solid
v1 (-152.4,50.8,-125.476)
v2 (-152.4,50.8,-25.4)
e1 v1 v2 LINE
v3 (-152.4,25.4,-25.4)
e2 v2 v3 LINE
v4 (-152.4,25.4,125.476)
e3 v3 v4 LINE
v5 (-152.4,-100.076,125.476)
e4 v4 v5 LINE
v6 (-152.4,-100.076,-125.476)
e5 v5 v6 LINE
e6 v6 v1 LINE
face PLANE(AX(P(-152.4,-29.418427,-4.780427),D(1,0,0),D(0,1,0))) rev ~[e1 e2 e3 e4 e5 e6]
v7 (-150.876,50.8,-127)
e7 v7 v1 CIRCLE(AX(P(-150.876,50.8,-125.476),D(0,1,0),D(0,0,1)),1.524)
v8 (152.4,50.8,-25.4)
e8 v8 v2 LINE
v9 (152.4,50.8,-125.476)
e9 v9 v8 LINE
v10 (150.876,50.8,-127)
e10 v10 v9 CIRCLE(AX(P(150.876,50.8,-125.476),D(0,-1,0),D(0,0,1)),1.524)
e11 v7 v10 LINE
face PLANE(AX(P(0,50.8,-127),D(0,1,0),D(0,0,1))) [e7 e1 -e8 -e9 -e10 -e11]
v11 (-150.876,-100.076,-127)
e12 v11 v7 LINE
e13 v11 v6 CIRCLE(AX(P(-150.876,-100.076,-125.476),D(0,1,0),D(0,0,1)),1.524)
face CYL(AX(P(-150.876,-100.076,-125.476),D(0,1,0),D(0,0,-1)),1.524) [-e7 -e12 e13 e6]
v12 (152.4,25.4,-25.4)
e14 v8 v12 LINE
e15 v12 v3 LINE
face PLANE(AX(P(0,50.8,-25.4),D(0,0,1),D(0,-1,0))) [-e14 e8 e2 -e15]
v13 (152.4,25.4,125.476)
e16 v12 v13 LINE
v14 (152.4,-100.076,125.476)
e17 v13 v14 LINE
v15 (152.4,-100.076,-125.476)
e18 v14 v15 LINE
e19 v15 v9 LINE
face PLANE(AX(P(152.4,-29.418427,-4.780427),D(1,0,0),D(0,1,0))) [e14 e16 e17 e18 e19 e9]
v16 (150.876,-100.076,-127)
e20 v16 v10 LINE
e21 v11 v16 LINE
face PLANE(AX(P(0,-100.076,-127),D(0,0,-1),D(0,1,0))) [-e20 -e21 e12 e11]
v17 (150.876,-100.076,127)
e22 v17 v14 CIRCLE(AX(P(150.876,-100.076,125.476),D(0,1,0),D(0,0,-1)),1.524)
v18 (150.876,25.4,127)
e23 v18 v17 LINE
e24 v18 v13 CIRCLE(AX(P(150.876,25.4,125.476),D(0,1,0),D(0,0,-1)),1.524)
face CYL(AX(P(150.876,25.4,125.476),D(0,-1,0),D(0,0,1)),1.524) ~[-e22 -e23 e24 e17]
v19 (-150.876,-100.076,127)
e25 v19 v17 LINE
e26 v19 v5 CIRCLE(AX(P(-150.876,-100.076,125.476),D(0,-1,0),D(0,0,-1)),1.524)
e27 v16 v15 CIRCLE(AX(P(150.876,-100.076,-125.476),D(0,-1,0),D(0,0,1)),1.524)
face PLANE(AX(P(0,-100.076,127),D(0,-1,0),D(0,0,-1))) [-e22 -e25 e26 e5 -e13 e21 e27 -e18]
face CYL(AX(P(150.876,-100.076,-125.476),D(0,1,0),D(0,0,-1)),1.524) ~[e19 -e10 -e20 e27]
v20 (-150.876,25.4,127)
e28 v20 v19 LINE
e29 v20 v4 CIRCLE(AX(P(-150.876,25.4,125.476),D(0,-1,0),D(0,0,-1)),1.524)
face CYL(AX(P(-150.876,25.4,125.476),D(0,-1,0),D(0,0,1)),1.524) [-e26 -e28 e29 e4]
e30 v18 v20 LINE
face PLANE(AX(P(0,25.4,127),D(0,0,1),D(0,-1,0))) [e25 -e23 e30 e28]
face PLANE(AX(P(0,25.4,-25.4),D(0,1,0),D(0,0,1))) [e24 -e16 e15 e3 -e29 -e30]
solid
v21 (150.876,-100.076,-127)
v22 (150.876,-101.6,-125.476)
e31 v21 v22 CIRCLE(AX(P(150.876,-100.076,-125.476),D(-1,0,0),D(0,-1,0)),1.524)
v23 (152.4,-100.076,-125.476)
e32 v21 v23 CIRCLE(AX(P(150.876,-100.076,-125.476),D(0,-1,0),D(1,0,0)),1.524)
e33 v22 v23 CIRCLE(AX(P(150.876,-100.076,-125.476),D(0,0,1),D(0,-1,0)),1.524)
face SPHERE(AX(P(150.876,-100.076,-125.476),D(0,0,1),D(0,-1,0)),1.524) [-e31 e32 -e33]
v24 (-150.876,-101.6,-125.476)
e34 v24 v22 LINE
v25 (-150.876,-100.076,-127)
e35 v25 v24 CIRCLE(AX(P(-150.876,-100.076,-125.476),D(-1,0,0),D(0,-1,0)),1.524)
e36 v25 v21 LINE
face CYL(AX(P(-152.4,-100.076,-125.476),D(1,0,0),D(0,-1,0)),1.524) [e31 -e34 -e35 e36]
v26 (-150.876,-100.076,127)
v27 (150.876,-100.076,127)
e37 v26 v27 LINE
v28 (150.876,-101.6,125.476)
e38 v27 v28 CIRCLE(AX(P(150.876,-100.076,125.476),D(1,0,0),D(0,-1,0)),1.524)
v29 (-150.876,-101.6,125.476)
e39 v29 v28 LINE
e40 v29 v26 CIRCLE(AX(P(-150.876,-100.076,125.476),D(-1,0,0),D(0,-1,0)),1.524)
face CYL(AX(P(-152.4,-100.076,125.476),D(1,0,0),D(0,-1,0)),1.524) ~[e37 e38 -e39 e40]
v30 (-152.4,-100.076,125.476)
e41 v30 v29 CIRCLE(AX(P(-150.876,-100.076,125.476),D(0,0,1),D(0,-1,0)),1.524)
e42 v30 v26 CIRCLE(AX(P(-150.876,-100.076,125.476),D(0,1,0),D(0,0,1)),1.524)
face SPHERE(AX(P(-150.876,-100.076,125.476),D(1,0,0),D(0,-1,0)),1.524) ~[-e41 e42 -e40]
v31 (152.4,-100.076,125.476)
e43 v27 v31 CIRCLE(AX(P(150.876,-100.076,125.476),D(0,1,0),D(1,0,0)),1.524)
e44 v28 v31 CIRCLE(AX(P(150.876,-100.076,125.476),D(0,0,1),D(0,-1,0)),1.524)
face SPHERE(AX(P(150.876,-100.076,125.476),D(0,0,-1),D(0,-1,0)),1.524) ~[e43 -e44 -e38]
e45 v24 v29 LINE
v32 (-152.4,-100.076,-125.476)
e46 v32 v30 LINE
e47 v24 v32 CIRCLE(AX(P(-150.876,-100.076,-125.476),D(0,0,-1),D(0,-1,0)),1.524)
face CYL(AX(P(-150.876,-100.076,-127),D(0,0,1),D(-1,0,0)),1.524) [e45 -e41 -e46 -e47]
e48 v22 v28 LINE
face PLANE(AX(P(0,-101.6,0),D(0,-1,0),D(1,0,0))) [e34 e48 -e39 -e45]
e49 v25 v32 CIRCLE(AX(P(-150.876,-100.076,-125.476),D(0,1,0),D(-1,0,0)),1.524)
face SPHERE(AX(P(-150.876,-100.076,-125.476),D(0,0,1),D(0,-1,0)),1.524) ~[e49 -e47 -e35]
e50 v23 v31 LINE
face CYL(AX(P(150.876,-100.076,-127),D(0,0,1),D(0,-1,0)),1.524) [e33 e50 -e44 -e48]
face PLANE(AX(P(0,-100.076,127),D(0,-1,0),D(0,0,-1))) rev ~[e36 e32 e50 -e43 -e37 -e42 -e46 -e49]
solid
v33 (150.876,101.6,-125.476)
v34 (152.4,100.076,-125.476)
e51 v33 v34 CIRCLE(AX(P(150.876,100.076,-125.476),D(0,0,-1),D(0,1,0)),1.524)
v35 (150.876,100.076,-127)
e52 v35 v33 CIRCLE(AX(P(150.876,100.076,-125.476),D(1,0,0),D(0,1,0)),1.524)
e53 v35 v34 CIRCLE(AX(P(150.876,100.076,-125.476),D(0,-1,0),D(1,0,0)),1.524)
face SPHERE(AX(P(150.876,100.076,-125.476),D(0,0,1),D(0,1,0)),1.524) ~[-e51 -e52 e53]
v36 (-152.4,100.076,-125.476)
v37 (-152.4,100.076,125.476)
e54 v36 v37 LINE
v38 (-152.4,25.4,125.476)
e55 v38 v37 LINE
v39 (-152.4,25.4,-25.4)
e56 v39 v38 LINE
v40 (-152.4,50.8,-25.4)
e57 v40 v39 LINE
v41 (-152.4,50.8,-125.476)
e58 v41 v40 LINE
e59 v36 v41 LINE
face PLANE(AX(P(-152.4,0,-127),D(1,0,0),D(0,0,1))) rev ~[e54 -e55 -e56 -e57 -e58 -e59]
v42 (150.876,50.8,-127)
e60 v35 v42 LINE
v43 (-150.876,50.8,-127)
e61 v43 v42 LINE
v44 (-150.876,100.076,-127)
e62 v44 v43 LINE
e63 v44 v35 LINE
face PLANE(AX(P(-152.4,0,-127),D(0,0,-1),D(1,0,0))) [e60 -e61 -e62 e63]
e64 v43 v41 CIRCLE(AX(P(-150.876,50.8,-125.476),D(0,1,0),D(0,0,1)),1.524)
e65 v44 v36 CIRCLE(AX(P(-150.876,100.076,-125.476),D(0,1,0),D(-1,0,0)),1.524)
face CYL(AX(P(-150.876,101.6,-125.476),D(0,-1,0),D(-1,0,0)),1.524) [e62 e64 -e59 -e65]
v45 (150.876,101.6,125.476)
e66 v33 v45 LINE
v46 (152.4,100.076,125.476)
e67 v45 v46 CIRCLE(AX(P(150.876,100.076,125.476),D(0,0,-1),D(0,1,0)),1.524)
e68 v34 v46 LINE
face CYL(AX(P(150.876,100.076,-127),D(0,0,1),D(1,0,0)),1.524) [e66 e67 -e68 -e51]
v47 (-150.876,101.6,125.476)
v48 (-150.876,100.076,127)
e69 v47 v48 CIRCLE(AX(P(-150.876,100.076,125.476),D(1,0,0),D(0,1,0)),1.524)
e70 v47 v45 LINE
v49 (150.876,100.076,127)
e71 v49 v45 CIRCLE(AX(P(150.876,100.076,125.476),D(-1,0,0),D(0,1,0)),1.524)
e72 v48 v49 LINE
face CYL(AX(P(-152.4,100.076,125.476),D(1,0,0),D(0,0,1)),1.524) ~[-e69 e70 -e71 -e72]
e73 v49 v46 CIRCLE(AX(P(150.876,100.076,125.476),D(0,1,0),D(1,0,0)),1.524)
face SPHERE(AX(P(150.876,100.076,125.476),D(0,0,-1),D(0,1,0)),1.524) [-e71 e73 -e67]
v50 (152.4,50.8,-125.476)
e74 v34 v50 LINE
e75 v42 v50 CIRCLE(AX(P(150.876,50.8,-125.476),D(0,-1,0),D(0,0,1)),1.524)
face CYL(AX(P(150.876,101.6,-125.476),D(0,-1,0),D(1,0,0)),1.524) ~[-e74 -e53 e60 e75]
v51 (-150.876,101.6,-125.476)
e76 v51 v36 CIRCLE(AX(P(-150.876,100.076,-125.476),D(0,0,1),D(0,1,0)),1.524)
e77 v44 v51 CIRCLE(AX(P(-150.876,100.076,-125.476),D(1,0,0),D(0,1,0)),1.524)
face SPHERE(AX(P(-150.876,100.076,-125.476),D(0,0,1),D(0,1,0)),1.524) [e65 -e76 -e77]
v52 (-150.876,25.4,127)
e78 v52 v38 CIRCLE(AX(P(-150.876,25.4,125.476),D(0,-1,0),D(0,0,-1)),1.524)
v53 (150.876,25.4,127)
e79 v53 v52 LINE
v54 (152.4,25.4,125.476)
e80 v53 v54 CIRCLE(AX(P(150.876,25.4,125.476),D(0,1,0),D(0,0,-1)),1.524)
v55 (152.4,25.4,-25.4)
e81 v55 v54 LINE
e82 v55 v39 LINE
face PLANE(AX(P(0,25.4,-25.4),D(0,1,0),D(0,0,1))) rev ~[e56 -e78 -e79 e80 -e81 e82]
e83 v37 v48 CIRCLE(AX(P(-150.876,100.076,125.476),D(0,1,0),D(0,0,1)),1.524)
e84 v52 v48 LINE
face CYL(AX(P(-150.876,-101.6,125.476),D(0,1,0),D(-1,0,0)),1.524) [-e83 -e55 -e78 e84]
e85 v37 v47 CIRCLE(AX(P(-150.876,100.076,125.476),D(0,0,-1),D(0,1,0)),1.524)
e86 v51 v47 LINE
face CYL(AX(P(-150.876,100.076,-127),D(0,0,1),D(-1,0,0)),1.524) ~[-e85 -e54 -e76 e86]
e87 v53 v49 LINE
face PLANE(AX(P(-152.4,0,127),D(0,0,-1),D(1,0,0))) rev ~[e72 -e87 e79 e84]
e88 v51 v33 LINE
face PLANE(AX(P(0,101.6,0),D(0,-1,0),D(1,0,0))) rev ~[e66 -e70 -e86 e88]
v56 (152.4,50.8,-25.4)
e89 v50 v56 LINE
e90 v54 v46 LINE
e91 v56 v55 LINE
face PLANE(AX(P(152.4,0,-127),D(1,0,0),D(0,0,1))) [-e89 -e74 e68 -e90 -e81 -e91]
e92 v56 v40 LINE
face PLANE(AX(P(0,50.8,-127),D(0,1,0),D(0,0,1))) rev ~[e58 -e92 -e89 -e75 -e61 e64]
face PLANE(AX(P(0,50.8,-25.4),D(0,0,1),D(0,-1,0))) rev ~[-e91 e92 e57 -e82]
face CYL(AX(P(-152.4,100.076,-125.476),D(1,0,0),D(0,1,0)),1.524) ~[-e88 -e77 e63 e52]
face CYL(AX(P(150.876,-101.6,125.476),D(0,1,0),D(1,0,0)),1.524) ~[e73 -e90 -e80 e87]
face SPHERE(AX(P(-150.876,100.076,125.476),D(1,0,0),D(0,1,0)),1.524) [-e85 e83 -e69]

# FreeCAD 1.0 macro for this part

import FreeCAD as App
import Part
import Sketcher
Q = App.Units.Quantity


def edges_at(feature, points):
    """Names of the edges that pass closest to the given points."""
    edges = feature.Shape.Edges
    near = lambda p: min(range(len(edges)), key=lambda i: edges[i].distToShape(Part.Vertex(*p))[0])
    return sorted({f"Edge{near(p) + 1}" for p in points})


def add_polygon(sketch, points):
    """Adds a closed chain of lines whose ends are joined by coincident constraints."""
    first, n = sketch.GeometryCount, len(points)
    for a, b in zip(points, points[1:] + points[:1]):
        sketch.addGeometry(Part.LineSegment(App.Vector(*a, 0), App.Vector(*b, 0)), False)
    for i in range(n):
        sketch.addConstraint(Sketcher.Constraint("Coincident", first + i, 2, first + (i + 1) % n, 1))

doc = App.newDocument("Part")
body = doc.addObject("PartDesign::Body", "Body")

# Sketch on XZ plane
sketch1 = body.newObject("Sketcher::SketchObject", "Sketch")
sketch1.AttachmentSupport = (doc.getObject("XZ_Plane"), [""])
sketch1.MapMode = "FlatFace"
add_polygon(sketch1, [(-152, 127), (-152, -127), (152, -127), (152, 127)])  # lines 0-3
sketch1.addConstraint([
    Sketcher.Constraint("Vertical", 0),
    Sketcher.Constraint("Horizontal", 1),
    Sketcher.Constraint("Vertical", 2),
    Sketcher.Constraint("Horizontal", 3),
    Sketcher.Constraint("Symmetric", 0, 2, 2, 2, -1, 1),
    Sketcher.Constraint("DistanceX", 1, 1, 1, 2, Q("12 in")),
    Sketcher.Constraint("DistanceY", 0, 2, 0, 1, Q("10 in")),
])
pad1 = body.newObject("PartDesign::Pad", "Pad")
pad1.Profile = sketch1
pad1.Length = Q("8 in")
pad1.Midplane = True
doc.recompute()

fillet = body.newObject("PartDesign::Fillet", "Fillet")
fillet.Base = (pad1, ["Edge1"])
fillet.UseAllEdges = True
fillet.Radius = Q("0.06 in")
body2 = doc.addObject("PartDesign::Body", "Body001")

# Sketch on YZ plane
sketch2 = body2.newObject("Sketcher::SketchObject", "Sketch001")
sketch2.AttachmentSupport = (doc.getObject("YZ_Plane001"), [""])
sketch2.MapMode = "FlatFace"
add_polygon(sketch2, [(25, 127), (-100, 127), (-100, -127), (51, -127), (51, -25), (25, -25)])  # lines 0-5
sketch2.addConstraint([
    Sketcher.Constraint("Horizontal", 0),
    Sketcher.Constraint("Vertical", 1),
    Sketcher.Constraint("Horizontal", 2),
    Sketcher.Constraint("Vertical", 3),
    Sketcher.Constraint("Horizontal", 4),
    Sketcher.Constraint("Vertical", 5),
    Sketcher.Constraint("DistanceX", 4, 2, 4, 1, Q("1 in")),
    Sketcher.Constraint("DistanceY", 1, 2, 1, 1, Q("10 in")),
    Sketcher.Constraint("DistanceY", 3, 1, 3, 2, Q("4 in")),
    Sketcher.Constraint("DistanceY", -1, 1, 0, 2, Q("5 in")),
    Sketcher.Constraint("DistanceX", -1, 1, 2, 2, Q("2 in")),
    Sketcher.Constraint("DistanceX", 0, 2, 0, 1, Q("4.94 in")),
])
pad2 = body2.newObject("PartDesign::Pad", "Pad001")
pad2.Profile = sketch2
pad2.Length = Q("12 in")
pad2.Midplane = True
doc.recompute()

fillet2 = body2.newObject("PartDesign::Fillet", "Fillet001")
fillet2.Base = (pad2, edges_at(pad2, [
    (152.4, -37.338, 127),
    (152.4, -24.638, -127),
    (-152.4, -24.638, -127),
    (-152.4, -37.338, 127),
]))
fillet2.Radius = Q("0.06 in")
body.AllowCompound = True
doc.recompute()

body3 = doc.addObject("PartDesign::Body", "Body002")
body3.BaseFeature = body2
boolean = body.newObject("PartDesign::Boolean", "Boolean")
boolean.Type = "Cut"
boolean.addObjects([body3])
doc.recompute()

doc.recompute()
